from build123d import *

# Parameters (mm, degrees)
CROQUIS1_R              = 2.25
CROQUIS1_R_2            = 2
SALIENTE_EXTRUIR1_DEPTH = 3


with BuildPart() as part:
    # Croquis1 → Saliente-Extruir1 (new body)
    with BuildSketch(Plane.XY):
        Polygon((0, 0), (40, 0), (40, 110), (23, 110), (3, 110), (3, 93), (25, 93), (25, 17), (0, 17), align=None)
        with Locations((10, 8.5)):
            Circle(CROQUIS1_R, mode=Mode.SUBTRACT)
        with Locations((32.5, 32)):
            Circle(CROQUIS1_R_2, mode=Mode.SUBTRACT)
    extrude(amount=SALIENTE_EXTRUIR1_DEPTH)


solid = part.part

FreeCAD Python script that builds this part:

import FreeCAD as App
import Part
import Sketcher

V = App.Vector

doc = App.newDocument("Part")
body = doc.addObject("PartDesign::Body", "Body")

# Sketch on XY plane
sketch1 = doc.addObject("Sketcher::SketchObject", "Sketch")
body.addObject(sketch1)
sketch1.AttachmentSupport = (doc.XY_Plane, [""])
sketch1.MapMode = "FlatFace"
sketch1.addGeometry(Part.LineSegment(V(0, 0, 0), V(40, 0, 0)), False)
sketch1.addGeometry(Part.LineSegment(V(40, 0, 0), V(40, 110, 0)), False)
sketch1.addGeometry(Part.LineSegment(V(40, 110, 0), V(3, 110, 0)), False)
sketch1.addGeometry(Part.LineSegment(V(3, 110, 0), V(3, 93, 0)), False)
sketch1.addGeometry(Part.LineSegment(V(3, 93, 0), V(25, 93, 0)), False)
sketch1.addGeometry(Part.LineSegment(V(25, 93, 0), V(25, 17, 0)), False)
sketch1.addGeometry(Part.LineSegment(V(25, 17, 0), V(0, 17, 0)), False)
sketch1.addGeometry(Part.LineSegment(V(0, 17, 0), V(0, 0, 0)), False)
sketch1.addGeometry(Part.Circle(V(10, 8.5, 0), V(0, 0, 1), 2.25), False)
sketch1.addGeometry(Part.Circle(V(32.5, 32, 0), V(0, 0, 1), 2), False)
sketch1.addConstraint(Sketcher.Constraint("Coincident", 0, 2, 1, 1))
sketch1.addConstraint(Sketcher.Constraint("Coincident", 1, 2, 2, 1))
sketch1.addConstraint(Sketcher.Constraint("Coincident", 2, 2, 3, 1))
sketch1.addConstraint(Sketcher.Constraint("Coincident", 3, 2, 4, 1))
sketch1.addConstraint(Sketcher.Constraint("Coincident", 4, 2, 5, 1))
sketch1.addConstraint(Sketcher.Constraint("Coincident", 5, 2, 6, 1))
sketch1.addConstraint(Sketcher.Constraint("Coincident", 6, 2, 7, 1))
sketch1.addConstraint(Sketcher.Constraint("Coincident", 7, 2, 0, 1))
sketch1.addConstraint(Sketcher.Constraint("Horizontal", 0))
sketch1.addConstraint(Sketcher.Constraint("Vertical", 1))
sketch1.addConstraint(Sketcher.Constraint("Horizontal", 2))
sketch1.addConstraint(Sketcher.Constraint("Vertical", 3))
sketch1.addConstraint(Sketcher.Constraint("Horizontal", 4))
sketch1.addConstraint(Sketcher.Constraint("Vertical", 5))
sketch1.addConstraint(Sketcher.Constraint("Horizontal", 6))
sketch1.addConstraint(Sketcher.Constraint("Vertical", 7))
sketch1.addConstraint(Sketcher.Constraint("Coincident", 7, 2, -1, 1))
sketch1.addConstraint(Sketcher.Constraint("Equal", 3, 7))
sketch1.addConstraint(Sketcher.Constraint("Diameter", 9, 4.0))
sketch1.addConstraint(Sketcher.Constraint("Diameter", 8, 4.5))
sketch1.addConstraint(Sketcher.Constraint("DistanceX", 0, 1, 0, 2, 40.0))
sketch1.addConstraint(Sketcher.Constraint("DistanceX", 2, 2, 2, 1, 37.0))
sketch1.addConstraint(Sketcher.Constraint("DistanceX", 4, 1, 4, 2, 22.0))
sketch1.addConstraint(Sketcher.Constraint("DistanceY", 1, 1, 1, 2, 110.0))
sketch1.addConstraint(Sketcher.Constraint("DistanceY", 3, 2, 3, 1, 17.0))
sketch1.addConstraint(Sketcher.Constraint("DistanceX", -1, 1, 8, 3, 10.0))
sketch1.addConstraint(Sketcher.Constraint("DistanceY", -1, 1, 9, 3, 32.0))
sketch1.addConstraint(Sketcher.Constraint("DistanceY", -1, 1, 8, 3, 8.5))
sketch1.addConstraint(Sketcher.Constraint("DistanceX", -1, 1, 9, 3, 32.5))
pad1 = doc.addObject("PartDesign::Pad", "Pad")
body.addObject(pad1)
pad1.Profile = sketch1
pad1.Length = 3

doc.recompute()
